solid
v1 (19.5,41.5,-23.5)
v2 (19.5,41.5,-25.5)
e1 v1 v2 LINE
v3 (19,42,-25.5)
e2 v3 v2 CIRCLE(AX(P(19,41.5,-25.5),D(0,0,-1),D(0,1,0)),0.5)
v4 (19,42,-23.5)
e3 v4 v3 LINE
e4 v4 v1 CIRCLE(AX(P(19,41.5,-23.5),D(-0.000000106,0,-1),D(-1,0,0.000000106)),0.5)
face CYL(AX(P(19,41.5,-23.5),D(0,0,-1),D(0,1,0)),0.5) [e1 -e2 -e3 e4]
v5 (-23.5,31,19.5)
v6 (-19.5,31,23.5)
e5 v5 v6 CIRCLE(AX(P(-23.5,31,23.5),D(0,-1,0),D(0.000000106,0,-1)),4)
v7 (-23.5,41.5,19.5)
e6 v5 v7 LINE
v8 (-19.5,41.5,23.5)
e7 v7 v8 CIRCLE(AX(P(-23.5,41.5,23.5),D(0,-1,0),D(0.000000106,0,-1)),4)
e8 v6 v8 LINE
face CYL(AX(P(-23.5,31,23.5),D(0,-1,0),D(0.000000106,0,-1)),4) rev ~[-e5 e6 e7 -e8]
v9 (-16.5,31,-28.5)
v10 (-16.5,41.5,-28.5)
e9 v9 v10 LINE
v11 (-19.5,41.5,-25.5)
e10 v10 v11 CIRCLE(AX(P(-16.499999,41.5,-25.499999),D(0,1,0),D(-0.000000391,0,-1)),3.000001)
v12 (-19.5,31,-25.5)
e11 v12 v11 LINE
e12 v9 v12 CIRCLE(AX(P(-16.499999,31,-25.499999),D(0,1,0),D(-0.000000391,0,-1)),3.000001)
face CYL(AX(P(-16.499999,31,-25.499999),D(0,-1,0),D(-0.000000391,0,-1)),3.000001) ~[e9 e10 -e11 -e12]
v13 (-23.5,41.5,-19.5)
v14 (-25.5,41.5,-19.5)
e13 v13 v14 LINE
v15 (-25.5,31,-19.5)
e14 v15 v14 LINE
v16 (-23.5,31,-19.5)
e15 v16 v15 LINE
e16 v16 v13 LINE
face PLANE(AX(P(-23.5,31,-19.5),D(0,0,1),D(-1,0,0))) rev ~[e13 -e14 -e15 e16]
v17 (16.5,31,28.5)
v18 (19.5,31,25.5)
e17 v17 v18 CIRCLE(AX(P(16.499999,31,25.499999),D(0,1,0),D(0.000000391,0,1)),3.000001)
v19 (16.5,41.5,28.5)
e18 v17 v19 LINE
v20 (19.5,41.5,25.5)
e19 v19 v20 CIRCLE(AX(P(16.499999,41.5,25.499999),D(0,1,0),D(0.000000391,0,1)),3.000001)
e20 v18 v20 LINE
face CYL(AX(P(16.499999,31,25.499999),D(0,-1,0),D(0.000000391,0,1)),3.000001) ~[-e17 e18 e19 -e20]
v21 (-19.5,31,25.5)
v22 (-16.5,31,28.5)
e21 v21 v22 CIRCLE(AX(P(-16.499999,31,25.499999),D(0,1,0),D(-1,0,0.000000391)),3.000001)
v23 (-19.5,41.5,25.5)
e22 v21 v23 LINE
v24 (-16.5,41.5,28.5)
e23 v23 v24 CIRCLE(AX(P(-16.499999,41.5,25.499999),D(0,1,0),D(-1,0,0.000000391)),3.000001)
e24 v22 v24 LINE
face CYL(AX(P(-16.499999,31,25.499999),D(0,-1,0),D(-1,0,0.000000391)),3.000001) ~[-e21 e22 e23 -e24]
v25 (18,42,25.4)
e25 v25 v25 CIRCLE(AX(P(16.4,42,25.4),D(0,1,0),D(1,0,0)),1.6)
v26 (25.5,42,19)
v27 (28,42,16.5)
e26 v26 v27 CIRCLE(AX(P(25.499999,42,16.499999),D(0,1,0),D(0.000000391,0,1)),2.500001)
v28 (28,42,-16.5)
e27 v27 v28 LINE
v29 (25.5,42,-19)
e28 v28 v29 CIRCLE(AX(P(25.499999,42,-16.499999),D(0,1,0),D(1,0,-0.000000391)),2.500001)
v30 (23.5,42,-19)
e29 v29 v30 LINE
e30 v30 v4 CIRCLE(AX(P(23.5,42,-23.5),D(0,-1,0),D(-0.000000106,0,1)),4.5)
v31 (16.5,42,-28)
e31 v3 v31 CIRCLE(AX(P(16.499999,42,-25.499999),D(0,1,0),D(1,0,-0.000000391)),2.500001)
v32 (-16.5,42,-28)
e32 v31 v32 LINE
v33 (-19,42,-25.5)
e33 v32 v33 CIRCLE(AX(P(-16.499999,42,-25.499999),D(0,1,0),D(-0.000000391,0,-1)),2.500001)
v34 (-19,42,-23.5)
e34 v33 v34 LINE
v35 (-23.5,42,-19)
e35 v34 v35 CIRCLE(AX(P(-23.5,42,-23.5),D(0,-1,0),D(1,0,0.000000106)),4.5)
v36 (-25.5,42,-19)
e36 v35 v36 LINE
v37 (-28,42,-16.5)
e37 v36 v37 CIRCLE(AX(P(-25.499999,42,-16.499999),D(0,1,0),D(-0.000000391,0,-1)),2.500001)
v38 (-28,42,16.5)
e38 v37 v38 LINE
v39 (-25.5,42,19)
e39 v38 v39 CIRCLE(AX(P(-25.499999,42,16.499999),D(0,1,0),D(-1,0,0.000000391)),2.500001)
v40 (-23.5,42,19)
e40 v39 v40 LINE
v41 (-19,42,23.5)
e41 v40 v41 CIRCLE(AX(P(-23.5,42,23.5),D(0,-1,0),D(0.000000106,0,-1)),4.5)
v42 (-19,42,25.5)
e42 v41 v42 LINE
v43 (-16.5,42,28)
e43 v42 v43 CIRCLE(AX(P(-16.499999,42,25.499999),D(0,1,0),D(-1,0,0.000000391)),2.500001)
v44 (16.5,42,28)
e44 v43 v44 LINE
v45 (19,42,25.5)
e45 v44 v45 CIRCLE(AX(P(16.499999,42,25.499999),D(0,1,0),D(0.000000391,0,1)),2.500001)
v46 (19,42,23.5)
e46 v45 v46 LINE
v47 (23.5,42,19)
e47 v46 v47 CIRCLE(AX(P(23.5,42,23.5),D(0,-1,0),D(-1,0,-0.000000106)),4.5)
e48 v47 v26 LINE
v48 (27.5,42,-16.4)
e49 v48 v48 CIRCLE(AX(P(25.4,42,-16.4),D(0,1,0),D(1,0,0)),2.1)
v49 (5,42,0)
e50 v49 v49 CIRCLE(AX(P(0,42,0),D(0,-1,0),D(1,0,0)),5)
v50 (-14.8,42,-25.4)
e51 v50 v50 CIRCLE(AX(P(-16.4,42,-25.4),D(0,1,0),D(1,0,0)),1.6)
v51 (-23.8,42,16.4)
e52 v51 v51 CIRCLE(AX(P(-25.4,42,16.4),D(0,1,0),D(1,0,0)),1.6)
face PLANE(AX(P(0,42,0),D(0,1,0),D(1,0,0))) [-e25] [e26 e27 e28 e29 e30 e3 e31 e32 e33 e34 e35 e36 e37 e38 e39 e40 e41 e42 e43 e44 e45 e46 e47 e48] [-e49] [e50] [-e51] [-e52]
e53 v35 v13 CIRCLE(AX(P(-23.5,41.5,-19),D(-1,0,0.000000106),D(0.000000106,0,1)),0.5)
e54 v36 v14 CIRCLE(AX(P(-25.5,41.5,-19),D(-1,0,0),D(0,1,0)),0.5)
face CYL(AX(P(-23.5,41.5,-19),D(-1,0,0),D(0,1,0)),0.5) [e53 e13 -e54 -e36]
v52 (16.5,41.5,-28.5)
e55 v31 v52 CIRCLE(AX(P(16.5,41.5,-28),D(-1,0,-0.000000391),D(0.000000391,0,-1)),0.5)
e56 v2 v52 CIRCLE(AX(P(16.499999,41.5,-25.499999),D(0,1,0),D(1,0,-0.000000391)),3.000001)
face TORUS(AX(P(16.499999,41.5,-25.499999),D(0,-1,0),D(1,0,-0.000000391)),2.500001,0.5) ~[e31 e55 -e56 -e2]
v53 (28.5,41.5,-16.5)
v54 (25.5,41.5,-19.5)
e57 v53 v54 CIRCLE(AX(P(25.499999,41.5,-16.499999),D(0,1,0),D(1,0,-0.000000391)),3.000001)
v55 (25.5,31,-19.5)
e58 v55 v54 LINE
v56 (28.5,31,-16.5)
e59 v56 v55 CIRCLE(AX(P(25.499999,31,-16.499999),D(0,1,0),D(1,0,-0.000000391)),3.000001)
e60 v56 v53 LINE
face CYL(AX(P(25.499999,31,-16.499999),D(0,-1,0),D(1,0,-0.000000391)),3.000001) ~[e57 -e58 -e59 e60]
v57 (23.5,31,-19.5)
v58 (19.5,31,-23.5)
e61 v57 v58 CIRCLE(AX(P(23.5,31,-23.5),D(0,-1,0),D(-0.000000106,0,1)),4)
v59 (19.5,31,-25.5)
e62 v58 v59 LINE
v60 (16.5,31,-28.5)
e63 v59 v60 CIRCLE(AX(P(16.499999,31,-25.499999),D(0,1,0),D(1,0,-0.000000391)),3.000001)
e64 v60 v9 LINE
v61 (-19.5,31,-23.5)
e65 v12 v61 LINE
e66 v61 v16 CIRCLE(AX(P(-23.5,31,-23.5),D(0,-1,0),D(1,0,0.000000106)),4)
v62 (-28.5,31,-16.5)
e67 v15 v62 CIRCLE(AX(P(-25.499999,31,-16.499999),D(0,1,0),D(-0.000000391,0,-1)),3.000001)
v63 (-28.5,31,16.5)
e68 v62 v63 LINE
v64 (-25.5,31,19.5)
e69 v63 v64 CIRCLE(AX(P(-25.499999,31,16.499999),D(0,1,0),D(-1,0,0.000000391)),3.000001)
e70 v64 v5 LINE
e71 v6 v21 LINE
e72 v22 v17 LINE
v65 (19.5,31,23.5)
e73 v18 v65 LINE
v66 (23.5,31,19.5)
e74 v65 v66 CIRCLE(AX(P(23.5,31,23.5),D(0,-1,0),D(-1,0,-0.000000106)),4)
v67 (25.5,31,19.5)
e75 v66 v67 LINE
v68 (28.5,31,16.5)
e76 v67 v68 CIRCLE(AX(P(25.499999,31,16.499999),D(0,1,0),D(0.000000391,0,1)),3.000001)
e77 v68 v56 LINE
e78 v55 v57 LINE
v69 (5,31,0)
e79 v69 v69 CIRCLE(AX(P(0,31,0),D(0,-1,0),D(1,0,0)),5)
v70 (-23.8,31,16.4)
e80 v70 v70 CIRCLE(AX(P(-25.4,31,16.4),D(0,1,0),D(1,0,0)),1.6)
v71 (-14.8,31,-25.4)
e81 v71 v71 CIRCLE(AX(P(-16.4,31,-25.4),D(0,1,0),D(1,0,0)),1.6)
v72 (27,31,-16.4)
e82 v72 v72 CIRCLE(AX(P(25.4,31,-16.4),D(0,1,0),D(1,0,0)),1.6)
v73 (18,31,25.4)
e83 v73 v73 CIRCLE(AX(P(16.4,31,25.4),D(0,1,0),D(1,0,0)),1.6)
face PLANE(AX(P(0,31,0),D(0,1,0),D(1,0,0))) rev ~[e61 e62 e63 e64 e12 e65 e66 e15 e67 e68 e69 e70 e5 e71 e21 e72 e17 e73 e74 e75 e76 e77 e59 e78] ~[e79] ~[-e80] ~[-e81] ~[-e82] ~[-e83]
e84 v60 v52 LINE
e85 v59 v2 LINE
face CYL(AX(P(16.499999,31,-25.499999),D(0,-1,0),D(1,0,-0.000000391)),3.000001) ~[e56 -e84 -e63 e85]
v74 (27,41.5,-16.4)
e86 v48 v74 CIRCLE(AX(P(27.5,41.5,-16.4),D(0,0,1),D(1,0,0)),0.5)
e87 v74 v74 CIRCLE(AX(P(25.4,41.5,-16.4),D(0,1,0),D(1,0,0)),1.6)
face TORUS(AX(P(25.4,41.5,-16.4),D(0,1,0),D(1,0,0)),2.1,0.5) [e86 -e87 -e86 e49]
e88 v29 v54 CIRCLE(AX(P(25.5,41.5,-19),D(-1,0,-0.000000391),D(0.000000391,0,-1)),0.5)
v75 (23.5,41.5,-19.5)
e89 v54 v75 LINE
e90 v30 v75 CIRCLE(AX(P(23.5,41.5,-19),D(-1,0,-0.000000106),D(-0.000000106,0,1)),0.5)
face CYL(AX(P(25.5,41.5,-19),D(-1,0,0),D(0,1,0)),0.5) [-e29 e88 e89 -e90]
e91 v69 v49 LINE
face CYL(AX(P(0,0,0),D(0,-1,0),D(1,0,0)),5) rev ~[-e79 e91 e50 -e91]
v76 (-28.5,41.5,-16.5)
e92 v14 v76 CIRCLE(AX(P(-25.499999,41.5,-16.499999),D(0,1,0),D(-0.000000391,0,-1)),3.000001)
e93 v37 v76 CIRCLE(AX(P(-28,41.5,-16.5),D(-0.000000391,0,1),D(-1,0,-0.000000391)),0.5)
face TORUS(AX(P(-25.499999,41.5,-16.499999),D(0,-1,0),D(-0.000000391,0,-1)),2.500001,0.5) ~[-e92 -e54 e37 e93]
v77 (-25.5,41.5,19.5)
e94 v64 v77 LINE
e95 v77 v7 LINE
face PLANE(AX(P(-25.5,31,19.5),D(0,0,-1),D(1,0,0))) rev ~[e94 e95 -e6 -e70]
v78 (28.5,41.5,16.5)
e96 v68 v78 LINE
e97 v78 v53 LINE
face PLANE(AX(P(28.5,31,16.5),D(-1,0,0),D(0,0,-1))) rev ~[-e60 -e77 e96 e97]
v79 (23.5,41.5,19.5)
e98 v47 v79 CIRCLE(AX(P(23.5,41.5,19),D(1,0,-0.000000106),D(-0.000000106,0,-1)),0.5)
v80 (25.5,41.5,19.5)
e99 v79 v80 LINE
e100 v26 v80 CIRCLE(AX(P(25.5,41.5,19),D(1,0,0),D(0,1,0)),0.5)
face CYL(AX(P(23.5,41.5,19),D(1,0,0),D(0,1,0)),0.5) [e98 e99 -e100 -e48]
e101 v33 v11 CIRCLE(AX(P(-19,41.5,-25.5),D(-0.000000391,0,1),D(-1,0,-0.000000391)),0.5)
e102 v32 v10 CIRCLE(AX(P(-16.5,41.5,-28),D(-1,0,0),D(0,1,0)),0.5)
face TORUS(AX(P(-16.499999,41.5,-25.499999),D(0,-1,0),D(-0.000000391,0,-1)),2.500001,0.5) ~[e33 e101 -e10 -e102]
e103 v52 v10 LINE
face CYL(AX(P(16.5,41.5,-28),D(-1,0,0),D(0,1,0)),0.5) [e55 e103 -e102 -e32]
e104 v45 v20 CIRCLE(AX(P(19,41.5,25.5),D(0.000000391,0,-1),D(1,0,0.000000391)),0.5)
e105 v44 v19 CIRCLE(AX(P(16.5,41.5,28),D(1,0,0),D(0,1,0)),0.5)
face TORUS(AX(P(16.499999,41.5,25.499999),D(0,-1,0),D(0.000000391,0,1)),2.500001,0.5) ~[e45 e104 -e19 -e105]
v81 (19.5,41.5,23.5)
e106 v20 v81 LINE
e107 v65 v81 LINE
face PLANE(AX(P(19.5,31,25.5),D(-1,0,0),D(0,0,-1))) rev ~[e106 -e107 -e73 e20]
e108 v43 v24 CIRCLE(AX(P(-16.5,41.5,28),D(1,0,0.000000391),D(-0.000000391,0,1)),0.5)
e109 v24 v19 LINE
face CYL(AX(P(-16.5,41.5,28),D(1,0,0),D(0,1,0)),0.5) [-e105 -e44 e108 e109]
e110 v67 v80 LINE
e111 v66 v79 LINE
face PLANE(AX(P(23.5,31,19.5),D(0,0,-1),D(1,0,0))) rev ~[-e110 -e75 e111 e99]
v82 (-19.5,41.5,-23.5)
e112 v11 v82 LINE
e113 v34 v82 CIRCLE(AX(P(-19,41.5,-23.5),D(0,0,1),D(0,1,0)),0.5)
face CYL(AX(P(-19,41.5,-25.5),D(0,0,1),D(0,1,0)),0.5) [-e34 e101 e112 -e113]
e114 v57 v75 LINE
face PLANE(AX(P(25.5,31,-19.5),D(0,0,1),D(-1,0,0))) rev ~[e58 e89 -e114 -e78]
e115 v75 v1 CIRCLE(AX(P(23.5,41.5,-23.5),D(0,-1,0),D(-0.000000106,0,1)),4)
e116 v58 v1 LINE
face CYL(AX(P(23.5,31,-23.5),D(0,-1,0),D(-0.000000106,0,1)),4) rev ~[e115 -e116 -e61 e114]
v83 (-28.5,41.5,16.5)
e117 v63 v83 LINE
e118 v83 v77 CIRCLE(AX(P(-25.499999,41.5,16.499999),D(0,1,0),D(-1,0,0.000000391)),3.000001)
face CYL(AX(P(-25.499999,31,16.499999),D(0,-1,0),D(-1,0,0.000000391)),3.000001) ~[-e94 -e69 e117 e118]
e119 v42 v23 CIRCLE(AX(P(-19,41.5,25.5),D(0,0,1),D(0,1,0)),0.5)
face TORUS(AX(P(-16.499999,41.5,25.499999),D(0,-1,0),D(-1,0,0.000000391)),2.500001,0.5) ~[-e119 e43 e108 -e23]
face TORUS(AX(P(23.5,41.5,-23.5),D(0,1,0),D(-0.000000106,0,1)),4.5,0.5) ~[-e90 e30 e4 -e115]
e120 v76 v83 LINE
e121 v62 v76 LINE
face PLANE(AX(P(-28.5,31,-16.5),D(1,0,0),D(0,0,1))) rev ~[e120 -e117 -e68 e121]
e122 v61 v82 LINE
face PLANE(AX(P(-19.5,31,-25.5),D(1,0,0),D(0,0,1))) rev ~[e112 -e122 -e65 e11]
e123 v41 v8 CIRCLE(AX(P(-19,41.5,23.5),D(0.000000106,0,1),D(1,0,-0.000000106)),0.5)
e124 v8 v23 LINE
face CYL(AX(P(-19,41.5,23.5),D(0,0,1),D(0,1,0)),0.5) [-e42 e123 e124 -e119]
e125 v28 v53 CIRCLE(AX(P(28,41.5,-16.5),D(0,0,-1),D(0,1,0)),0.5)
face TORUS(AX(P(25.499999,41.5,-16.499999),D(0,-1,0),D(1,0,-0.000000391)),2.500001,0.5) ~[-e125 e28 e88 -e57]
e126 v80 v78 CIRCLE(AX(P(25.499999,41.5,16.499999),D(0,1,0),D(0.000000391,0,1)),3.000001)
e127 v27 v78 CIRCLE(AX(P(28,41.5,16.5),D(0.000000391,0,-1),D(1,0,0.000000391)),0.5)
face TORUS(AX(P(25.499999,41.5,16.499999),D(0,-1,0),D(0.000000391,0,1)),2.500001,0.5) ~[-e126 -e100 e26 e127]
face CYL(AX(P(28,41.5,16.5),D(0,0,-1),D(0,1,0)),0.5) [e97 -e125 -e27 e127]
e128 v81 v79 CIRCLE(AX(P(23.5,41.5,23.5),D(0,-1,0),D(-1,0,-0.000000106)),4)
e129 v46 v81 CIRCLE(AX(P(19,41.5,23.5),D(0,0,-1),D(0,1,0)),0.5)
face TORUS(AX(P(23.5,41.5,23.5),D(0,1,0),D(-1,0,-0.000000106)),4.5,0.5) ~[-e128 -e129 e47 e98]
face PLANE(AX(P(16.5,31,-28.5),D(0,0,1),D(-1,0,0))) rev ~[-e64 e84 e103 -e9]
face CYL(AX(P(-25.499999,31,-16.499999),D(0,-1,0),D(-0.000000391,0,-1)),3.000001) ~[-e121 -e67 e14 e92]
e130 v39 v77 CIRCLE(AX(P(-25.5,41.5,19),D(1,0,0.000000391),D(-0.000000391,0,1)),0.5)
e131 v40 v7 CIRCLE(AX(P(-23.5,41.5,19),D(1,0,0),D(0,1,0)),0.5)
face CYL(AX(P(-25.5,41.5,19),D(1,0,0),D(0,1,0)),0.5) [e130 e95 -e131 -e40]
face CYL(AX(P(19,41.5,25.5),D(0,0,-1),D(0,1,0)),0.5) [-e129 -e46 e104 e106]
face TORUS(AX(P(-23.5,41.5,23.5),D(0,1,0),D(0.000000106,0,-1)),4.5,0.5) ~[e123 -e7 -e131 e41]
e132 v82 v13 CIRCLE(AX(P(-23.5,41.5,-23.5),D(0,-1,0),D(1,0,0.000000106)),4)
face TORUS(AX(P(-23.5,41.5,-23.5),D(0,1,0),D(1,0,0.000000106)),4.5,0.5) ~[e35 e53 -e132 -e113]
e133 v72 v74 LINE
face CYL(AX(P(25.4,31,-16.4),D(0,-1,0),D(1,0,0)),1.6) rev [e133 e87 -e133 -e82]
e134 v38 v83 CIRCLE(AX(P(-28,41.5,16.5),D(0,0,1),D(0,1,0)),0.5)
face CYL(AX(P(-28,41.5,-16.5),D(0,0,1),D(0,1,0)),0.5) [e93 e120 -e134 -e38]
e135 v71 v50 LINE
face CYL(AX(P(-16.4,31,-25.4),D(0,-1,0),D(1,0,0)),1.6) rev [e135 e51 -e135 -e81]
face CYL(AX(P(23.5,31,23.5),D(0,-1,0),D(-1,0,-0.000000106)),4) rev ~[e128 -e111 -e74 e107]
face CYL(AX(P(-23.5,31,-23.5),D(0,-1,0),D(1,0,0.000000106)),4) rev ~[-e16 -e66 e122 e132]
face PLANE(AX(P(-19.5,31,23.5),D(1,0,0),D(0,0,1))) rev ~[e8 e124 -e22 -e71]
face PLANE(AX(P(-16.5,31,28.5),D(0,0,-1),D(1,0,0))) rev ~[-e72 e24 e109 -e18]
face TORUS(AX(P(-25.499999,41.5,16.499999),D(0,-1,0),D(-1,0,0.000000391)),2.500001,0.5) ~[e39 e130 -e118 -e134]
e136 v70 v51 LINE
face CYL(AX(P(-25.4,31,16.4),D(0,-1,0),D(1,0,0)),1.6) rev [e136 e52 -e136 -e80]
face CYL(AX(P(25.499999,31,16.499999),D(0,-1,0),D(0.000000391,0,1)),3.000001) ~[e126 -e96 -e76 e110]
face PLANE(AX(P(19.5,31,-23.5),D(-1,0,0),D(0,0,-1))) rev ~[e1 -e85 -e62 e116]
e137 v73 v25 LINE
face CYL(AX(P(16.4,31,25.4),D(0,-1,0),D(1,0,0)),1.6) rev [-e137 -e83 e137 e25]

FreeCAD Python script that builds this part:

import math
import FreeCAD as App
import Part
import Sketcher
Q = App.Units.Quantity


def edges_at(feature, points):
    """Names of the edges that pass closest to the given points."""
    edges = feature.Shape.Edges
    near = lambda p: min(range(len(edges)), key=lambda i: edges[i].distToShape(Part.Vertex(*p))[0])
    return sorted({f"Edge{near(p) + 1}" for p in points})

doc = App.newDocument("Part")
body = doc.addObject("PartDesign::Body", "Body")

# Sketch on XZ plane
sketch1 = doc.addObject("Sketcher::SketchObject", "Sketch")
body.addObject(sketch1)
sketch1.AttachmentSupport = (doc.XZ_Plane, [""])
sketch1.MapMode = "FlatFace"
sketch1.AttachmentOffset = App.Placement(App.Vector(0, 0, -31), App.Rotation())
sketch1.addGeometry([
    Part.LineSegment(App.Vector(-16.5, 28.5, 0), App.Vector(16.5, 28.5, 0)),  # 0
    Part.ArcOfCircle(Part.Circle(App.Vector(16.499999, 25.499999, 0), App.Vector(0, 0, 1), 3.000001), math.radians(0.000022), math.radians(89.999978)),  # 1
    Part.LineSegment(App.Vector(19.5, 25.5, 0), App.Vector(19.5, 23.5, 0)),  # 2
    Part.ArcOfCircle(Part.Circle(App.Vector(23.5, 23.5, 0), App.Vector(0, 0, 1), 4), math.radians(-179.999994), math.radians(-90.000006)),  # 3
    Part.LineSegment(App.Vector(23.5, 19.5, 0), App.Vector(25.5, 19.5, 0)),  # 4
    Part.ArcOfCircle(Part.Circle(App.Vector(25.499999, 16.499999, 0), App.Vector(0, 0, 1), 3.000001), math.radians(0.000022), math.radians(89.999978)),  # 5
    Part.LineSegment(App.Vector(28.5, 16.5, 0), App.Vector(28.5, -16.5, 0)),  # 6
    Part.ArcOfCircle(Part.Circle(App.Vector(25.499999, -16.499999, 0), App.Vector(0, 0, 1), 3.000001), math.radians(-89.999978), math.radians(-0.000022)),  # 7
    Part.LineSegment(App.Vector(25.5, -19.5, 0), App.Vector(23.5, -19.5, 0)),  # 8
    Part.ArcOfCircle(Part.Circle(App.Vector(23.5, -23.5, 0), App.Vector(0, 0, 1), 4), math.radians(90.000006), math.radians(179.999994)),  # 9
    Part.LineSegment(App.Vector(19.5, -23.5, 0), App.Vector(19.5, -25.5, 0)),  # 10
    Part.ArcOfCircle(Part.Circle(App.Vector(16.499999, -25.499999, 0), App.Vector(0, 0, 1), 3.000001), math.radians(-89.999978), math.radians(-0.000022)),  # 11
    Part.LineSegment(App.Vector(16.5, -28.5, 0), App.Vector(-16.5, -28.5, 0)),  # 12
    Part.ArcOfCircle(Part.Circle(App.Vector(-16.499999, -25.499999, 0), App.Vector(0, 0, 1), 3.000001), math.radians(-179.999978), math.radians(-90.000022)),  # 13
    Part.LineSegment(App.Vector(-19.5, -25.5, 0), App.Vector(-19.5, -23.5, 0)),  # 14
    Part.ArcOfCircle(Part.Circle(App.Vector(-23.5, -23.5, 0), App.Vector(0, 0, 1), 4), math.radians(0.000006), math.radians(89.999994)),  # 15
    Part.LineSegment(App.Vector(-23.5, -19.5, 0), App.Vector(-25.5, -19.5, 0)),  # 16
    Part.ArcOfCircle(Part.Circle(App.Vector(-25.499999, -16.499999, 0), App.Vector(0, 0, 1), 3.000001), math.radians(-179.999978), math.radians(-90.000022)),  # 17
    Part.LineSegment(App.Vector(-28.5, -16.5, 0), App.Vector(-28.5, 16.5, 0)),  # 18
    Part.ArcOfCircle(Part.Circle(App.Vector(-25.499999, 16.499999, 0), App.Vector(0, 0, 1), 3.000001), math.radians(90.000022), math.radians(179.999978)),  # 19
    Part.LineSegment(App.Vector(-25.5, 19.5, 0), App.Vector(-23.5, 19.5, 0)),  # 20
    Part.ArcOfCircle(Part.Circle(App.Vector(-23.5, 23.5, 0), App.Vector(0, 0, 1), 4), math.radians(-89.999994), math.radians(-0.000006)),  # 21
    Part.LineSegment(App.Vector(-19.5, 23.5, 0), App.Vector(-19.5, 25.5, 0)),  # 22
    Part.ArcOfCircle(Part.Circle(App.Vector(-16.499999, 25.499999, 0), App.Vector(0, 0, 1), 3.000001), math.radians(90.000022), math.radians(179.999978)),  # 23
    Part.Circle(App.Vector(-25.4, 16.4, 0), App.Vector(0, 0, 1), 1.6),  # 24
    Part.Circle(App.Vector(16.4, 25.4, 0), App.Vector(0, 0, 1), 1.6),  # 25
    Part.Circle(App.Vector(-16.4, -25.4, 0), App.Vector(0, 0, 1), 1.6),  # 26
    Part.Circle(App.Vector(25.4, -16.4, 0), App.Vector(0, 0, 1), 1.6),  # 27
], False)
sketch1.addConstraint([
    Sketcher.Constraint("Tangent", 0, 2, 1, 2),
    Sketcher.Constraint("Tangent", 1, 1, 2, 1),
    Sketcher.Constraint("Tangent", 2, 2, 3, 1),
    Sketcher.Constraint("Tangent", 3, 2, 4, 1),
    Sketcher.Constraint("Tangent", 4, 2, 5, 2),
    Sketcher.Constraint("Tangent", 5, 1, 6, 1),
    Sketcher.Constraint("Tangent", 6, 2, 7, 2),
    Sketcher.Constraint("Tangent", 7, 1, 8, 1),
    Sketcher.Constraint("Tangent", 8, 2, 9, 1),
    Sketcher.Constraint("Tangent", 9, 2, 10, 1),
    Sketcher.Constraint("Tangent", 10, 2, 11, 2),
    Sketcher.Constraint("Tangent", 11, 1, 12, 1),
    Sketcher.Constraint("Tangent", 12, 2, 13, 2),
    Sketcher.Constraint("Tangent", 13, 1, 14, 1),
    Sketcher.Constraint("Tangent", 14, 2, 15, 1),
    Sketcher.Constraint("Tangent", 15, 2, 16, 1),
    Sketcher.Constraint("Tangent", 16, 2, 17, 2),
    Sketcher.Constraint("Tangent", 17, 1, 18, 1),
    Sketcher.Constraint("Tangent", 18, 2, 19, 2),
    Sketcher.Constraint("Tangent", 19, 1, 20, 1),
    Sketcher.Constraint("Tangent", 20, 2, 21, 1),
    Sketcher.Constraint("Tangent", 21, 2, 22, 1),
    Sketcher.Constraint("Tangent", 22, 2, 23, 2),
    Sketcher.Constraint("Tangent", 23, 1, 0, 1),
    Sketcher.Constraint("Horizontal", 0),
    Sketcher.Constraint("Vertical", 2),
    Sketcher.Constraint("Horizontal", 4),
    Sketcher.Constraint("Vertical", 6),
    Sketcher.Constraint("Horizontal", 8),
    Sketcher.Constraint("Vertical", 10),
    Sketcher.Constraint("Horizontal", 12),
    Sketcher.Constraint("Vertical", 14),
    Sketcher.Constraint("Horizontal", 16),
    Sketcher.Constraint("Vertical", 18),
    Sketcher.Constraint("Horizontal", 20),
    Sketcher.Constraint("Vertical", 22),
    Sketcher.Constraint("Equal", 1, 5),
    Sketcher.Constraint("Equal", 5, 7),
    Sketcher.Constraint("Equal", 3, 9),
    Sketcher.Constraint("Equal", 7, 11),
    Sketcher.Constraint("Equal", 11, 13),
    Sketcher.Constraint("Equal", 9, 15),
    Sketcher.Constraint("Equal", 13, 17),
    Sketcher.Constraint("Equal", 17, 19),
    Sketcher.Constraint("Equal", 15, 21),
    Sketcher.Constraint("Equal", 19, 23),
    Sketcher.Constraint("Equal", 24, 25),
    Sketcher.Constraint("Equal", 25, 26),
    Sketcher.Constraint("Equal", 26, 27),
    Sketcher.Constraint("Symmetric", 1, 3, 13, 3, -1, 1),
    Sketcher.Constraint("Symmetric", 5, 3, 17, 3, -1, 1),
    Sketcher.Constraint("Symmetric", 9, 3, 21, 3, -1, 1),
    Sketcher.Constraint("Symmetric", 25, 3, 26, 3, -1, 1),
    Sketcher.Constraint("Symmetric", 24, 3, 27, 3, -1, 1),
    Sketcher.Constraint("Symmetric", 9, 3, 15, 3, -2),
    Sketcher.Constraint("Equal", 20, 2),
    Sketcher.Constraint("Equal", 12, 6),
    Sketcher.Constraint("Radius", 1, Q("3.000001 mm")),
    Sketcher.Constraint("Radius", 3, Q("4 mm")),
    Sketcher.Constraint("Diameter", 24, Q("3.2 mm")),
    Sketcher.Constraint("DistanceX", 0, 1, 0, 2, Q("33 mm")),
    Sketcher.Constraint("DistanceX", 4, 1, 4, 2, Q("2 mm")),
    Sketcher.Constraint("DistanceX", 24, 3, -1, 1, Q("25.4 mm")),
    Sketcher.Constraint("DistanceY", -1, 1, 24, 3, Q("16.4 mm")),
    Sketcher.Constraint("DistanceX", -1, 1, 25, 3, Q("16.4 mm")),
    Sketcher.Constraint("DistanceY", -1, 1, 25, 3, Q("25.4 mm")),
])
pad1 = doc.addObject("PartDesign::Pad", "Pad")
body.addObject(pad1)
pad1.Profile = sketch1
pad1.Length = 11
pad1.Reversed = True

# Sketch on XZ plane
sketch2 = doc.addObject("Sketcher::SketchObject", "Sketch001")
body.addObject(sketch2)
sketch2.AttachmentSupport = (doc.XZ_Plane, [""])
sketch2.MapMode = "FlatFace"
sketch2.addGeometry(Part.Circle(App.Vector(0, 0, 0), App.Vector(0, 0, 1), 5), False)
sketch2.addConstraint([
    Sketcher.Constraint("Coincident", 0, 3, -1, 1),
    Sketcher.Constraint("Diameter", 0, Q("10 mm")),
])
pocket1 = doc.addObject("PartDesign::Pocket", "Pocket")
body.addObject(pocket1)
pocket1.Profile = sketch2
pocket1.Type = "ThroughAll"
doc.recompute()

fillet = doc.addObject("PartDesign::Fillet", "Fillet")
body.addObject(fillet)
fillet.Base = (pocket1, edges_at(pocket1, [(20.672, 42, -20.672), (23.8, 42, -16.4)]))
fillet.Radius = 0.5

doc.recompute()
